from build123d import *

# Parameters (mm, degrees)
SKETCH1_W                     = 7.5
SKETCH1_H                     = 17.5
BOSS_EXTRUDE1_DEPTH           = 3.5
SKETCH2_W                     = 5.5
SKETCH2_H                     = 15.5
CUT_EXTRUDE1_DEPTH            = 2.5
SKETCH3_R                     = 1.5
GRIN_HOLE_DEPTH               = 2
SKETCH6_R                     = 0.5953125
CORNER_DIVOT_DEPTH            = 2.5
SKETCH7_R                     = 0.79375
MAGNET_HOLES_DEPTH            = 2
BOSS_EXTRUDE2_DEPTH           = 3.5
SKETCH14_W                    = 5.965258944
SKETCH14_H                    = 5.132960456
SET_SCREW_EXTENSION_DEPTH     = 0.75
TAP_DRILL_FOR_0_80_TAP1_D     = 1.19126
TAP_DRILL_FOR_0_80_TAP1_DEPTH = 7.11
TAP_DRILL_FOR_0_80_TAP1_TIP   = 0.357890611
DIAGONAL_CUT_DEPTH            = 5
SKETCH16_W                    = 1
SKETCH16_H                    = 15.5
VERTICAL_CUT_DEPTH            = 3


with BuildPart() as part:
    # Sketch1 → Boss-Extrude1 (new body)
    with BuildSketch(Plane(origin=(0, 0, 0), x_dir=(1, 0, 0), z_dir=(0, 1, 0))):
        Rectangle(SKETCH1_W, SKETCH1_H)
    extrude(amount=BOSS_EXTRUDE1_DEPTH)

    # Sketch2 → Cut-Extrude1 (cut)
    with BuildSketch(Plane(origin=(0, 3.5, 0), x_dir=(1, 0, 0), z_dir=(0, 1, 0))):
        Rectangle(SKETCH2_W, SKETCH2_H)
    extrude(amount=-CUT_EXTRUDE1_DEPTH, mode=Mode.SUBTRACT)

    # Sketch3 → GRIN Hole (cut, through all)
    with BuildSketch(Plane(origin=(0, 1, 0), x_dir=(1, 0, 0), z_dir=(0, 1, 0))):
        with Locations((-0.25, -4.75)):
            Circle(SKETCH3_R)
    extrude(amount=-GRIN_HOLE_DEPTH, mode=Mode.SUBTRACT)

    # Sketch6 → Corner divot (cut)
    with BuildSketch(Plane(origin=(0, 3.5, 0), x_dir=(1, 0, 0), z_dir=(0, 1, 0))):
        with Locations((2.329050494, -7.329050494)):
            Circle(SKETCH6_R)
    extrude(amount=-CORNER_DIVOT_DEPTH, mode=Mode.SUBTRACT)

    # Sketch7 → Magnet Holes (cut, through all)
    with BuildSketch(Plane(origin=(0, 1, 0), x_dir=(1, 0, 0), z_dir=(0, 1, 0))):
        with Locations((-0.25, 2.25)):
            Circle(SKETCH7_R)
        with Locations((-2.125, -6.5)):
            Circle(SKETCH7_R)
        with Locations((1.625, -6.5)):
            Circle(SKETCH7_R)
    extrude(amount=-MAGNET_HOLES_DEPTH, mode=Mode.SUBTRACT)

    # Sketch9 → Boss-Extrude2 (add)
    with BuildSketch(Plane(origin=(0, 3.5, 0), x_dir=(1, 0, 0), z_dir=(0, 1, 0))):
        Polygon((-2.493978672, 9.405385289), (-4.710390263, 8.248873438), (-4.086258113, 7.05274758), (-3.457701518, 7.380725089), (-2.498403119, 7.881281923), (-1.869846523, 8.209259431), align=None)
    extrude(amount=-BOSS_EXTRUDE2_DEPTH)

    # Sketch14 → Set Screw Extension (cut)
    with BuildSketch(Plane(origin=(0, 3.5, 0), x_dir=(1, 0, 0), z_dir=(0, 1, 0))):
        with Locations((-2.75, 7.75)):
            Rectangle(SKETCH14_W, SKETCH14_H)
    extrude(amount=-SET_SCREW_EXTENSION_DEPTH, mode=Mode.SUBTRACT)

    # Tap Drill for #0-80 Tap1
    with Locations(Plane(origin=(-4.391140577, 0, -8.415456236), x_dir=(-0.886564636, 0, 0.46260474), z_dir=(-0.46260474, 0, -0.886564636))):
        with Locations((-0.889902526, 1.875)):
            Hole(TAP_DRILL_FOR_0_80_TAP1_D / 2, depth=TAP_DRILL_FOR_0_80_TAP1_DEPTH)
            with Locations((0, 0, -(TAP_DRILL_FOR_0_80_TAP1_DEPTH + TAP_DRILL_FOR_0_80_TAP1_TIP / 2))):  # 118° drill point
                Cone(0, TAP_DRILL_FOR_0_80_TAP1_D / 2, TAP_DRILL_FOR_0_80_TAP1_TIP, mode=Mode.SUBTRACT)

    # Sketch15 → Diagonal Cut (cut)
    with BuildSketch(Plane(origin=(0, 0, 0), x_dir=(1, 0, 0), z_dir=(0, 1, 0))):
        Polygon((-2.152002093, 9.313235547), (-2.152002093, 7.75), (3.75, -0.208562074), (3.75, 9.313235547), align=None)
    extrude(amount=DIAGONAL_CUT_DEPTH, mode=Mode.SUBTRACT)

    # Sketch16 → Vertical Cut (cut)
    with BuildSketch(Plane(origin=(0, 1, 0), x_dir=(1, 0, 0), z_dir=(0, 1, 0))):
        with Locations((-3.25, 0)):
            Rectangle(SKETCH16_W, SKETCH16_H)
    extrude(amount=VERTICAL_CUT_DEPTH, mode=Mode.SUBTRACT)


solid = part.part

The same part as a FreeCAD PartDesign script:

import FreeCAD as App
import Part
import Sketcher

V = App.Vector
Q = App.Units.Quantity

doc = App.newDocument("Part")
params = doc.addObject("Spreadsheet::Sheet", "Params")
for row, (alias, value) in enumerate([
    ("sketch1_width", "7.5 mm"),
    ("sketch1_height", "17.5 mm"),
    ("pad1_length", "3.5 mm"),
    ("sketch2_width", "5.5 mm"),
    ("sketch2_height", "15.5 mm"),
    ("pocket1_length", "2.5 mm"),
    ("sketch3_diameter", "3 mm"),
    ("pocket3_length", "2.5 mm"),
    ("sketch6_length", "2.5 mm"),
    ("pad2_length", "3.5 mm"),
    ("pocket5_length", "0.75 mm"),
    ("hole_diameter", "1.19126 mm"),
    ("hole_depth", "7.11 mm"),
    ("pocket6_length", "5 mm"),
    ("sketch10_width", "1 mm"),
    ("sketch10_height", "15.5 mm"),
    ("pocket7_length", "3 mm"),
], start=1):
    params.set(f"A{row}", alias)
    params.set(f"B{row}", "=" + value)
    params.setAlias(f"B{row}", alias)

body = doc.addObject("PartDesign::Body", "Body")

# Sketch on XZ plane
sketch1 = body.newObject("Sketcher::SketchObject", "Sketch")
sketch1.AttachmentSupport = (doc.getObject("XZ_Plane"), [""])
sketch1.MapMode = "FlatFace"
sketch1.addGeometry(Part.LineSegment(V(-4, -9, 0), V(-4, 9, 0)), False)
sketch1.addGeometry(Part.LineSegment(V(-4, 9, 0), V(4, 9, 0)), False)
sketch1.addGeometry(Part.LineSegment(V(4, 9, 0), V(4, -9, 0)), False)
sketch1.addGeometry(Part.LineSegment(V(4, -9, 0), V(-4, -9, 0)), False)
sketch1.addConstraint(Sketcher.Constraint("Coincident", 0, 2, 1, 1))
sketch1.addConstraint(Sketcher.Constraint("Coincident", 1, 2, 2, 1))
sketch1.addConstraint(Sketcher.Constraint("Coincident", 2, 2, 3, 1))
sketch1.addConstraint(Sketcher.Constraint("Coincident", 3, 2, 0, 1))
sketch1.addConstraint(Sketcher.Constraint("Vertical", 0))
sketch1.addConstraint(Sketcher.Constraint("Horizontal", 1))
sketch1.addConstraint(Sketcher.Constraint("Vertical", 2))
sketch1.addConstraint(Sketcher.Constraint("Horizontal", 3))
sketch1.addConstraint(Sketcher.Constraint("Symmetric", 0, 2, 2, 2, -1, 1))
sketch1.addConstraint(Sketcher.Constraint("DistanceX", 1, 1, 1, 2, Q("7.5 mm")))
sketch1.addConstraint(Sketcher.Constraint("DistanceY", 0, 1, 0, 2, Q("17.5 mm")))
sketch1.setExpression("Constraints[9]", "Params.sketch1_width")
sketch1.setExpression("Constraints[10]", "Params.sketch1_height")
pad1 = body.newObject("PartDesign::Pad", "Pad")
pad1.Profile = sketch1
pad1.setExpression("Length", "Params.pad1_length")
pad1.Reversed = True

# Sketch on XZ plane
sketch2 = body.newObject("Sketcher::SketchObject", "Sketch001")
sketch2.AttachmentSupport = (doc.getObject("XZ_Plane"), [""])
sketch2.MapMode = "FlatFace"
sketch2.AttachmentOffset = App.Placement(V(0, 0, -3.5), App.Rotation())
sketch2.addGeometry(Part.LineSegment(V(-3, -8, 0), V(-3, 8, 0)), False)
sketch2.addGeometry(Part.LineSegment(V(-3, 8, 0), V(3, 8, 0)), False)
sketch2.addGeometry(Part.LineSegment(V(3, 8, 0), V(3, -8, 0)), False)
sketch2.addGeometry(Part.LineSegment(V(3, -8, 0), V(-3, -8, 0)), False)
sketch2.addConstraint(Sketcher.Constraint("Coincident", 0, 2, 1, 1))
sketch2.addConstraint(Sketcher.Constraint("Coincident", 1, 2, 2, 1))
sketch2.addConstraint(Sketcher.Constraint("Coincident", 2, 2, 3, 1))
sketch2.addConstraint(Sketcher.Constraint("Coincident", 3, 2, 0, 1))
sketch2.addConstraint(Sketcher.Constraint("Vertical", 0))
sketch2.addConstraint(Sketcher.Constraint("Horizontal", 1))
sketch2.addConstraint(Sketcher.Constraint("Vertical", 2))
sketch2.addConstraint(Sketcher.Constraint("Horizontal", 3))
sketch2.addConstraint(Sketcher.Constraint("Symmetric", 0, 2, 2, 2, -1, 1))
sketch2.addConstraint(Sketcher.Constraint("DistanceX", 1, 1, 1, 2, Q("5.5 mm")))
sketch2.addConstraint(Sketcher.Constraint("DistanceY", 0, 1, 0, 2, Q("15.5 mm")))
sketch2.setExpression("Constraints[9]", "Params.sketch2_width")
sketch2.setExpression("Constraints[10]", "Params.sketch2_height")
pocket1 = body.newObject("PartDesign::Pocket", "Pocket")
pocket1.Profile = sketch2
pocket1.setExpression("Length", "Params.pocket1_length")
pocket1.Reversed = True

# Sketch on XZ plane
sketch3 = body.newObject("Sketcher::SketchObject", "Sketch002")
sketch3.AttachmentSupport = (doc.getObject("XZ_Plane"), [""])
sketch3.MapMode = "FlatFace"
sketch3.AttachmentOffset = App.Placement(V(0, 0, -1), App.Rotation())
sketch3.addGeometry(Part.Circle(V(-0.2, 4.8, 0), V(0, 0, 1), 1.5), False)
sketch3.addConstraint(Sketcher.Constraint("Diameter", 0, Q("3 mm")))
sketch3.addConstraint(Sketcher.Constraint("DistanceX", 0, 3, -1, 1, Q("0.25 mm")))
sketch3.addConstraint(Sketcher.Constraint("DistanceY", -1, 1, 0, 3, Q("4.75 mm")))
sketch3.setExpression("Constraints[0]", "Params.sketch3_diameter")
pocket2 = body.newObject("PartDesign::Pocket", "Pocket001")
pocket2.Profile = sketch3
pocket2.Type = "ThroughAll"
pocket2.Reversed = True

# Sketch on XZ plane
sketch4 = body.newObject("Sketcher::SketchObject", "Sketch003")
sketch4.AttachmentSupport = (doc.getObject("XZ_Plane"), [""])
sketch4.MapMode = "FlatFace"
sketch4.AttachmentOffset = App.Placement(V(0, 0, -3.5), App.Rotation())
sketch4.addGeometry(Part.Circle(V(2.3, 7.3, 0), V(0, 0, 1), 0.6), False)
sketch4.addConstraint(Sketcher.Constraint("Diameter", 0, Q("1.190625 mm")))
sketch4.addConstraint(Sketcher.Constraint("DistanceX", -1, 1, 0, 3, Q("2.32905 mm")))
sketch4.addConstraint(Sketcher.Constraint("DistanceY", -1, 1, 0, 3, Q("7.32905 mm")))
pocket3 = body.newObject("PartDesign::Pocket", "Pocket002")
pocket3.Profile = sketch4
pocket3.setExpression("Length", "Params.pocket3_length")
pocket3.Reversed = True

# Sketch on XZ plane
sketch5 = body.newObject("Sketcher::SketchObject", "Sketch004")
sketch5.AttachmentSupport = (doc.getObject("XZ_Plane"), [""])
sketch5.MapMode = "FlatFace"
sketch5.AttachmentOffset = App.Placement(V(0, 0, -1), App.Rotation())
sketch5.addGeometry(Part.Circle(V(-0.2, -2.2, 0), V(0, 0, 1), 0.8), False)
sketch5.addGeometry(Part.Circle(V(-2.1, 6.5, 0), V(0, 0, 1), 0.8), False)
sketch5.addGeometry(Part.Circle(V(1.6, 6.5, 0), V(0, 0, 1), 0.8), False)
sketch5.addConstraint(Sketcher.Constraint("Equal", 0, 1))
sketch5.addConstraint(Sketcher.Constraint("Equal", 1, 2))
sketch5.addConstraint(Sketcher.Constraint("Horizontal", 1, 3, 2, 3))
sketch5.addConstraint(Sketcher.Constraint("Diameter", 0, Q("1.5875 mm")))
sketch5.addConstraint(Sketcher.Constraint("DistanceY", -1, 1, 1, 3, Q("6.5 mm")))
sketch5.addConstraint(Sketcher.Constraint("DistanceX", 0, 3, -1, 1, Q("0.25 mm")))
sketch5.addConstraint(Sketcher.Constraint("DistanceY", 0, 3, -1, 1, Q("2.25 mm")))
sketch5.addConstraint(Sketcher.Constraint("DistanceX", 1, 3, 2, 3, Q("3.75 mm")))
sketch5.addConstraint(Sketcher.Constraint("DistanceX", 1, 3, -1, 1, Q("2.125 mm")))
pocket4 = body.newObject("PartDesign::Pocket", "Pocket003")
pocket4.Profile = sketch5
pocket4.Type = "ThroughAll"
pocket4.Reversed = True

# Sketch on XZ plane
sketch6 = body.newObject("Sketcher::SketchObject", "Sketch005")
sketch6.AttachmentSupport = (doc.getObject("XZ_Plane"), [""])
sketch6.MapMode = "FlatFace"
sketch6.AttachmentOffset = App.Placement(V(0, 0, -3.5), App.Rotation())
sketch6.addGeometry(Part.LineSegment(V(-2.5, -9.4, 0), V(-4.7, -8.2, 0)), False)
sketch6.addGeometry(Part.LineSegment(V(-4.7, -8.2, 0), V(-4.1, -7.1, 0)), False)
sketch6.addGeometry(Part.LineSegment(V(-4.1, -7.1, 0), V(-3.5, -7.4, 0)), False)
sketch6.addGeometry(Part.LineSegment(V(-3.5, -7.4, 0), V(-2.5, -7.9, 0)), False)
sketch6.addGeometry(Part.LineSegment(V(-2.5, -7.9, 0), V(-1.9, -8.2, 0)), False)
sketch6.addGeometry(Part.LineSegment(V(-1.9, -8.2, 0), V(-2.5, -9.4, 0)), False)
sketch6.addConstraint(Sketcher.Constraint("Coincident", 0, 2, 1, 1))
sketch6.addConstraint(Sketcher.Constraint("Coincident", 1, 2, 2, 1))
sketch6.addConstraint(Sketcher.Constraint("Coincident", 2, 2, 3, 1))
sketch6.addConstraint(Sketcher.Constraint("Coincident", 3, 2, 4, 1))
sketch6.addConstraint(Sketcher.Constraint("Coincident", 4, 2, 5, 1))
sketch6.addConstraint(Sketcher.Constraint("Coincident", 5, 2, 0, 1))
sketch6.addConstraint(Sketcher.Constraint("Perpendicular", 0, 1))
sketch6.addConstraint(Sketcher.Constraint("Perpendicular", 1, 2))
sketch6.addConstraint(Sketcher.Constraint("Parallel", 2, 3))
sketch6.addConstraint(Sketcher.Constraint("Parallel", 3, 4))
sketch6.addConstraint(Sketcher.Constraint("Perpendicular", 4, 5))
sketch6.addConstraint(Sketcher.Constraint("Equal", 2, 4))
sketch6.addConstraint(Sketcher.Constraint("Distance", 0, Q("2.5 mm")))
sketch6.addConstraint(Sketcher.Constraint("DistanceX", 2, 2, -1, 1, Q("3.457702 mm")))
sketch6.addConstraint(Sketcher.Constraint("DistanceX", 2, 2, 3, 2, Q("0.959298 mm")))
sketch6.addConstraint(Sketcher.Constraint("Distance", 1, Q("1.349169 mm")))
sketch6.addConstraint(Sketcher.Constraint("Distance", 2, Q("0.70898 mm")))
sketch6.addConstraint(Sketcher.Constraint("DistanceY", 3, 2, -1, 1, Q("7.881282 mm")))
sketch6.setExpression("Constraints[12]", "Params.sketch6_length")
pad2 = body.newObject("PartDesign::Pad", "Pad001")
pad2.Profile = sketch6
pad2.setExpression("Length", "Params.pad2_length")

# Sketch on XZ plane
sketch7 = body.newObject("Sketcher::SketchObject", "Sketch006")
sketch7.AttachmentSupport = (doc.getObject("XZ_Plane"), [""])
sketch7.MapMode = "FlatFace"
sketch7.AttachmentOffset = App.Placement(V(0, 0, -3.5), App.Rotation())
sketch7.addGeometry(Part.LineSegment(V(-6, -10, 0), V(-6, -5, 0)), False)
sketch7.addGeometry(Part.LineSegment(V(-6, -5, 0), V(0, -5, 0)), False)
sketch7.addGeometry(Part.LineSegment(V(0, -5, 0), V(0, -10, 0)), False)
sketch7.addGeometry(Part.LineSegment(V(0, -10, 0), V(-6, -10, 0)), False)
sketch7.addConstraint(Sketcher.Constraint("Coincident", 0, 2, 1, 1))
sketch7.addConstraint(Sketcher.Constraint("Coincident", 1, 2, 2, 1))
sketch7.addConstraint(Sketcher.Constraint("Coincident", 2, 2, 3, 1))
sketch7.addConstraint(Sketcher.Constraint("Coincident", 3, 2, 0, 1))
sketch7.addConstraint(Sketcher.Constraint("Vertical", 0))
sketch7.addConstraint(Sketcher.Constraint("Horizontal", 1))
sketch7.addConstraint(Sketcher.Constraint("Vertical", 2))
sketch7.addConstraint(Sketcher.Constraint("Horizontal", 3))
sketch7.addConstraint(Sketcher.Constraint("DistanceX", 1, 1, 1, 2, Q("5.965259 mm")))
sketch7.addConstraint(Sketcher.Constraint("DistanceY", 0, 1, 0, 2, Q("5.13296 mm")))
sketch7.addConstraint(Sketcher.Constraint("DistanceX", 0, 2, -1, 1, Q("5.732629 mm")))
sketch7.addConstraint(Sketcher.Constraint("DistanceY", 0, 2, -1, 1, Q("5.18352 mm")))
pocket5 = body.newObject("PartDesign::Pocket", "Pocket004")
pocket5.Profile = sketch7
pocket5.setExpression("Length", "Params.pocket5_length")
pocket5.Reversed = True

# Sketch on an angled plane
sketch8 = body.newObject("Sketcher::SketchObject", "Sketch007")
sketch8.Placement = App.Placement(V(-4.391141, 0, -8.415456), App.Rotation(V(-0.886564636, 0, 0.46260474), V(0, 0.999999999, 0), V(-0.46260474, 0, -0.886564636), "ZXY"))
sketch8.addGeometry(Part.Circle(V(-0.9, 1.9, 0), V(0, 0, 1), 0.6), False)
sketch8.addConstraint(Sketcher.Constraint("Diameter", 0, Q("1.19126 mm")))
sketch8.addConstraint(Sketcher.Constraint("DistanceY", -1, 1, 0, 3, Q("1.875 mm")))
sketch8.addConstraint(Sketcher.Constraint("DistanceX", 0, 3, -1, 1, Q("0.889903 mm")))
doc.recompute()
hole = body.newObject("PartDesign::Hole", "Hole")
hole.Profile = sketch8
hole.ThreadType = "None"
hole.setExpression("Diameter", "Params.hole_diameter")
hole.DepthType = "Dimension"
hole.setExpression("Depth", "Params.hole_depth")
hole.DrillPoint = "Angled"
hole.DrillPointAngle = 118

# Sketch on XZ plane
sketch9 = body.newObject("Sketcher::SketchObject", "Sketch008")
sketch9.AttachmentSupport = (doc.getObject("XZ_Plane"), [""])
sketch9.MapMode = "FlatFace"
sketch9.addGeometry(Part.LineSegment(V(-2.2, -9.3, 0), V(-2.2, -7.8, 0)), False)
sketch9.addGeometry(Part.LineSegment(V(-2.2, -7.8, 0), V(3.8, 0.2, 0)), False)
sketch9.addGeometry(Part.LineSegment(V(3.8, 0.2, 0), V(3.8, -9.3, 0)), False)
sketch9.addGeometry(Part.LineSegment(V(3.8, -9.3, 0), V(-2.2, -9.3, 0)), False)
sketch9.addConstraint(Sketcher.Constraint("Coincident", 0, 2, 1, 1))
sketch9.addConstraint(Sketcher.Constraint("Coincident", 1, 2, 2, 1))
sketch9.addConstraint(Sketcher.Constraint("Coincident", 2, 2, 3, 1))
sketch9.addConstraint(Sketcher.Constraint("Coincident", 3, 2, 0, 1))
sketch9.addConstraint(Sketcher.Constraint("Vertical", 0))
sketch9.addConstraint(Sketcher.Constraint("Vertical", 2))
sketch9.addConstraint(Sketcher.Constraint("Horizontal", 3))
sketch9.addConstraint(Sketcher.Constraint("DistanceY", 0, 2, -1, 1, Q("7.75 mm")))
sketch9.addConstraint(Sketcher.Constraint("DistanceX", -1, 1, 1, 2, Q("3.75 mm")))
sketch9.addConstraint(Sketcher.Constraint("DistanceX", 3, 2, 3, 1, Q("5.902002 mm")))
sketch9.addConstraint(Sketcher.Constraint("DistanceY", 0, 1, 0, 2, Q("1.563236 mm")))
sketch9.addConstraint(Sketcher.Constraint("DistanceY", 2, 2, 2, 1, Q("9.521798 mm")))
pocket6 = body.newObject("PartDesign::Pocket", "Pocket005")
pocket6.Profile = sketch9
pocket6.setExpression("Length", "Params.pocket6_length")

# Sketch on XZ plane
sketch10 = body.newObject("Sketcher::SketchObject", "Sketch009")
sketch10.AttachmentSupport = (doc.getObject("XZ_Plane"), [""])
sketch10.MapMode = "FlatFace"
sketch10.AttachmentOffset = App.Placement(V(0, 0, -1), App.Rotation())
sketch10.addGeometry(Part.LineSegment(V(-3.8, -7.8, 0), V(-3.8, 7.8, 0)), False)
sketch10.addGeometry(Part.LineSegment(V(-3.8, 7.8, 0), V(-2.8, 7.8, 0)), False)
sketch10.addGeometry(Part.LineSegment(V(-2.8, 7.8, 0), V(-2.8, -7.8, 0)), False)
sketch10.addGeometry(Part.LineSegment(V(-2.8, -7.8, 0), V(-3.8, -7.8, 0)), False)
sketch10.addConstraint(Sketcher.Constraint("Coincident", 0, 2, 1, 1))
sketch10.addConstraint(Sketcher.Constraint("Coincident", 1, 2, 2, 1))
sketch10.addConstraint(Sketcher.Constraint("Coincident", 2, 2, 3, 1))
sketch10.addConstraint(Sketcher.Constraint("Coincident", 3, 2, 0, 1))
sketch10.addConstraint(Sketcher.Constraint("Vertical", 0))
sketch10.addConstraint(Sketcher.Constraint("Horizontal", 1))
sketch10.addConstraint(Sketcher.Constraint("Vertical", 2))
sketch10.addConstraint(Sketcher.Constraint("Horizontal", 3))
sketch10.addConstraint(Sketcher.Constraint("DistanceX", 1, 1, 1, 2, Q("1 mm")))
sketch10.addConstraint(Sketcher.Constraint("DistanceY", 0, 1, 0, 2, Q("15.5 mm")))
sketch10.addConstraint(Sketcher.Constraint("DistanceX", 0, 2, -1, 1, Q("3.75 mm")))
sketch10.addConstraint(Sketcher.Constraint("DistanceY", -1, 1, 0, 2, Q("7.75 mm")))
sketch10.setExpression("Constraints[8]", "Params.sketch10_width")
sketch10.setExpression("Constraints[9]", "Params.sketch10_height")
pocket7 = body.newObject("PartDesign::Pocket", "Pocket006")
pocket7.Profile = sketch10
pocket7.setExpression("Length", "Params.pocket7_length")

doc.recompute()
